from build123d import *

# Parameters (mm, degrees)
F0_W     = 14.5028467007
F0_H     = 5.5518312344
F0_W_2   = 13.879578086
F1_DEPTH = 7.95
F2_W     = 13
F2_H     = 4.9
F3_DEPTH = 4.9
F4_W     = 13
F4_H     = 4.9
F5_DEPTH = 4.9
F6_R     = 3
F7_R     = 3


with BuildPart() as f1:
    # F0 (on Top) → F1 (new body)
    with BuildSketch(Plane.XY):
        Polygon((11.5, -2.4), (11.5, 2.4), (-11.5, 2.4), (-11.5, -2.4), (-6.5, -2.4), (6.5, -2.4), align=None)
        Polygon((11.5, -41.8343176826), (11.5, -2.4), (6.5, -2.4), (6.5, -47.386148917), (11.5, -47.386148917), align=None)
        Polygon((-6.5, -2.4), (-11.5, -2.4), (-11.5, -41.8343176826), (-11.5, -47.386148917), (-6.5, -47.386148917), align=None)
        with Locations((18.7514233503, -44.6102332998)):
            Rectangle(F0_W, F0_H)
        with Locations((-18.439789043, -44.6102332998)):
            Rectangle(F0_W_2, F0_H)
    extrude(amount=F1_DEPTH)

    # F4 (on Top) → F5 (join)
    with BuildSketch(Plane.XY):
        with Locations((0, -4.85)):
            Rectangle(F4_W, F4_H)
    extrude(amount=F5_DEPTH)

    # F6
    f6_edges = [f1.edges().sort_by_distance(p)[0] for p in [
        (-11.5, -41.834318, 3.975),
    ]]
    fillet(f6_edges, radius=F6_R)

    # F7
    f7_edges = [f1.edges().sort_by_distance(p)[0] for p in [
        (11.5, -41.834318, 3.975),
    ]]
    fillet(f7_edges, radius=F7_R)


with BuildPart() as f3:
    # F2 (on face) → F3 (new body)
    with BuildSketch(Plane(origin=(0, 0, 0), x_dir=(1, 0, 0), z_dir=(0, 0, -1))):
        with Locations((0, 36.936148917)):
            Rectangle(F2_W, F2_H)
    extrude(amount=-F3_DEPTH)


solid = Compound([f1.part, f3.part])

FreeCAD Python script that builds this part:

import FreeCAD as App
import Part
import Sketcher
from FreeCAD import Vector


def edges_at(feature, points):
    """Names of the edges that pass closest to the given points."""
    edges = feature.Shape.Edges
    near = lambda p: min(range(len(edges)), key=lambda i: edges[i].distToShape(Part.Vertex(*p))[0])
    return sorted({f"Edge{near(p) + 1}" for p in points})

doc = App.newDocument("Part")
params = doc.addObject("Spreadsheet::Sheet", "Params")
for row, (alias, value) in enumerate([
    ("sketch1_width", "23 mm"),
    ("sketch1_width2", "13 mm"),
    ("pad1_length", "7.95 mm"),
    ("sketch2_width", "13 mm"),
    ("sketch2_height", "4.9 mm"),
    ("pad2_length", "4.9 mm"),
    ("fillet_radius", "3 mm"),
    ("fillet2_radius", "3 mm"),
    ("sketch3_width", "13 mm"),
    ("sketch3_height", "4.9 mm"),
    ("pad3_length", "4.9 mm"),
], start=1):
    params.set(f"A{row}", alias)
    params.set(f"B{row}", "=" + value)
    params.setAlias(f"B{row}", alias)

body = doc.addObject("PartDesign::Body", "Body")

sketch1 = doc.addObject("Sketcher::SketchObject", "Sketch")
body.addObject(sketch1)
sketch1.AttachmentSupport = (doc.XY_Plane, [""])
sketch1.MapMode = "FlatFace"
sketch1.addGeometry(Part.LineSegment(Vector(12, 2, 0), Vector(-12, 2, 0)), False)
sketch1.addGeometry(Part.LineSegment(Vector(-12, 2, 0), Vector(-12, -42, 0)), False)
sketch1.addGeometry(Part.LineSegment(Vector(-12, -42, 0), Vector(-25, -42, 0)), False)
sketch1.addGeometry(Part.LineSegment(Vector(-25, -42, 0), Vector(-25, -47, 0)), False)
sketch1.addGeometry(Part.LineSegment(Vector(-25, -47, 0), Vector(-6, -47, 0)), False)
sketch1.addGeometry(Part.LineSegment(Vector(-6, -47, 0), Vector(-6, -2, 0)), False)
sketch1.addGeometry(Part.LineSegment(Vector(-6, -2, 0), Vector(6, -2, 0)), False)
sketch1.addGeometry(Part.LineSegment(Vector(6, -2, 0), Vector(6, -47, 0)), False)
sketch1.addGeometry(Part.LineSegment(Vector(6, -47, 0), Vector(26, -47, 0)), False)
sketch1.addGeometry(Part.LineSegment(Vector(26, -47, 0), Vector(26, -42, 0)), False)
sketch1.addGeometry(Part.LineSegment(Vector(26, -42, 0), Vector(12, -42, 0)), False)
sketch1.addGeometry(Part.LineSegment(Vector(12, -42, 0), Vector(12, 2, 0)), False)
sketch1.addConstraint(Sketcher.Constraint("Coincident", 0, 2, 1, 1))
sketch1.addConstraint(Sketcher.Constraint("Coincident", 1, 2, 2, 1))
sketch1.addConstraint(Sketcher.Constraint("Coincident", 2, 2, 3, 1))
sketch1.addConstraint(Sketcher.Constraint("Coincident", 3, 2, 4, 1))
sketch1.addConstraint(Sketcher.Constraint("Coincident", 4, 2, 5, 1))
sketch1.addConstraint(Sketcher.Constraint("Coincident", 5, 2, 6, 1))
sketch1.addConstraint(Sketcher.Constraint("Coincident", 6, 2, 7, 1))
sketch1.addConstraint(Sketcher.Constraint("Coincident", 7, 2, 8, 1))
sketch1.addConstraint(Sketcher.Constraint("Coincident", 8, 2, 9, 1))
sketch1.addConstraint(Sketcher.Constraint("Coincident", 9, 2, 10, 1))
sketch1.addConstraint(Sketcher.Constraint("Coincident", 10, 2, 11, 1))
sketch1.addConstraint(Sketcher.Constraint("Coincident", 11, 2, 0, 1))
sketch1.addConstraint(Sketcher.Constraint("Horizontal", 0))
sketch1.addConstraint(Sketcher.Constraint("Vertical", 1))
sketch1.addConstraint(Sketcher.Constraint("Horizontal", 2))
sketch1.addConstraint(Sketcher.Constraint("Vertical", 3))
sketch1.addConstraint(Sketcher.Constraint("Horizontal", 4))
sketch1.addConstraint(Sketcher.Constraint("Vertical", 5))
sketch1.addConstraint(Sketcher.Constraint("Horizontal", 6))
sketch1.addConstraint(Sketcher.Constraint("Vertical", 7))
sketch1.addConstraint(Sketcher.Constraint("Horizontal", 8))
sketch1.addConstraint(Sketcher.Constraint("Vertical", 9))
sketch1.addConstraint(Sketcher.Constraint("Horizontal", 10))
sketch1.addConstraint(Sketcher.Constraint("Vertical", 11))
sketch1.addConstraint(Sketcher.Constraint("Symmetric", 4, 2, 7, 2, -2))
sketch1.addConstraint(Sketcher.Constraint("Symmetric", 1, 2, 10, 2, -2))
sketch1.addConstraint(Sketcher.Constraint("DistanceX", 0, 2, 0, 1, 23.0))
sketch1.addConstraint(Sketcher.Constraint("DistanceX", 6, 1, 6, 2, 13.0))
sketch1.addConstraint(Sketcher.Constraint("DistanceY", -1, 1, 0, 2, 2.4))
sketch1.addConstraint(Sketcher.Constraint("DistanceY", 5, 2, -1, 1, 2.4))
sketch1.addConstraint(Sketcher.Constraint("DistanceX", 2, 2, 2, 1, 13.879578))
sketch1.addConstraint(Sketcher.Constraint("DistanceY", 3, 2, 3, 1, 5.551831))
sketch1.addConstraint(Sketcher.Constraint("DistanceY", 5, 1, 5, 2, 44.986149))
sketch1.addConstraint(Sketcher.Constraint("DistanceX", 8, 1, 8, 2, 19.502847))
sketch1.setExpression("Constraints[26]", "Params.sketch1_width")
sketch1.setExpression("Constraints[27]", "Params.sketch1_width2")
pad1 = doc.addObject("PartDesign::Pad", "Pad")
body.addObject(pad1)
pad1.Profile = sketch1
pad1.setExpression("Length", "Params.pad1_length")

sketch2 = doc.addObject("Sketcher::SketchObject", "Sketch001")
body.addObject(sketch2)
sketch2.AttachmentSupport = (doc.XY_Plane, [""])
sketch2.MapMode = "FlatFace"
sketch2.addGeometry(Part.LineSegment(Vector(-6.5, -2.4, 0), Vector(-6.5, -7.3, 0)), False)
sketch2.addGeometry(Part.LineSegment(Vector(-6.5, -7.3, 0), Vector(6.5, -7.3, 0)), False)
sketch2.addGeometry(Part.LineSegment(Vector(6.5, -7.3, 0), Vector(6.5, -2.4, 0)), False)
sketch2.addGeometry(Part.LineSegment(Vector(6.5, -2.4, 0), Vector(-6.5, -2.4, 0)), False)
sketch2.addConstraint(Sketcher.Constraint("Coincident", 0, 2, 1, 1))
sketch2.addConstraint(Sketcher.Constraint("Coincident", 1, 2, 2, 1))
sketch2.addConstraint(Sketcher.Constraint("Coincident", 2, 2, 3, 1))
sketch2.addConstraint(Sketcher.Constraint("Coincident", 3, 2, 0, 1))
sketch2.addConstraint(Sketcher.Constraint("Vertical", 0))
sketch2.addConstraint(Sketcher.Constraint("Horizontal", 1))
sketch2.addConstraint(Sketcher.Constraint("Vertical", 2))
sketch2.addConstraint(Sketcher.Constraint("Horizontal", 3))
sketch2.addConstraint(Sketcher.Constraint("DistanceX", 1, 1, 1, 2, 13.0))
sketch2.addConstraint(Sketcher.Constraint("DistanceY", 0, 2, 0, 1, 4.9))
sketch2.addConstraint(Sketcher.Constraint("DistanceX", 0, 2, -1, 1, 6.5))
sketch2.addConstraint(Sketcher.Constraint("DistanceY", 0, 2, -1, 1, 7.3))
sketch2.setExpression("Constraints[8]", "Params.sketch2_width")
sketch2.setExpression("Constraints[9]", "Params.sketch2_height")
pad2 = doc.addObject("PartDesign::Pad", "Pad001")
body.addObject(pad2)
pad2.Profile = sketch2
pad2.setExpression("Length", "Params.pad2_length")
doc.recompute()

fillet = doc.addObject("PartDesign::Fillet", "Fillet")
body.addObject(fillet)
fillet.Base = (pad2, edges_at(pad2, [(-11.5, -41.834, 3.975)]))
fillet.setExpression("Radius", "Params.fillet_radius")
doc.recompute()

fillet2 = doc.addObject("PartDesign::Fillet", "Fillet001")
body.addObject(fillet2)
fillet2.Base = (fillet, edges_at(fillet, [(11.5, -41.834, 3.975)]))
fillet2.setExpression("Radius", "Params.fillet2_radius")
body2 = doc.addObject("PartDesign::Body", "Body001")

sketch3 = doc.addObject("Sketcher::SketchObject", "Sketch002")
body2.addObject(sketch3)
sketch3.AttachmentSupport = (doc.getObject("XY_Plane001"), [""])
sketch3.MapMode = "FlatFace"
sketch3.addGeometry(Part.LineSegment(Vector(-6.5, -39.4, 0), Vector(-6.5, -34.5, 0)), False)
sketch3.addGeometry(Part.LineSegment(Vector(-6.5, -34.5, 0), Vector(6.5, -34.5, 0)), False)
sketch3.addGeometry(Part.LineSegment(Vector(6.5, -34.5, 0), Vector(6.5, -39.4, 0)), False)
sketch3.addGeometry(Part.LineSegment(Vector(6.5, -39.4, 0), Vector(-6.5, -39.4, 0)), False)
sketch3.addConstraint(Sketcher.Constraint("Coincident", 0, 2, 1, 1))
sketch3.addConstraint(Sketcher.Constraint("Coincident", 1, 2, 2, 1))
sketch3.addConstraint(Sketcher.Constraint("Coincident", 2, 2, 3, 1))
sketch3.addConstraint(Sketcher.Constraint("Coincident", 3, 2, 0, 1))
sketch3.addConstraint(Sketcher.Constraint("Vertical", 0))
sketch3.addConstraint(Sketcher.Constraint("Horizontal", 1))
sketch3.addConstraint(Sketcher.Constraint("Vertical", 2))
sketch3.addConstraint(Sketcher.Constraint("Horizontal", 3))
sketch3.addConstraint(Sketcher.Constraint("DistanceX", 1, 1, 1, 2, 13.0))
sketch3.addConstraint(Sketcher.Constraint("DistanceY", 0, 1, 0, 2, 4.9))
sketch3.addConstraint(Sketcher.Constraint("DistanceX", 0, 2, -1, 1, 6.5))
sketch3.addConstraint(Sketcher.Constraint("DistanceY", 0, 2, -1, 1, 34.486149))
sketch3.setExpression("Constraints[8]", "Params.sketch3_width")
sketch3.setExpression("Constraints[9]", "Params.sketch3_height")
pad3 = doc.addObject("PartDesign::Pad", "Pad002")
body2.addObject(pad3)
pad3.Profile = sketch3
pad3.setExpression("Length", "Params.pad3_length")

doc.recompute()
